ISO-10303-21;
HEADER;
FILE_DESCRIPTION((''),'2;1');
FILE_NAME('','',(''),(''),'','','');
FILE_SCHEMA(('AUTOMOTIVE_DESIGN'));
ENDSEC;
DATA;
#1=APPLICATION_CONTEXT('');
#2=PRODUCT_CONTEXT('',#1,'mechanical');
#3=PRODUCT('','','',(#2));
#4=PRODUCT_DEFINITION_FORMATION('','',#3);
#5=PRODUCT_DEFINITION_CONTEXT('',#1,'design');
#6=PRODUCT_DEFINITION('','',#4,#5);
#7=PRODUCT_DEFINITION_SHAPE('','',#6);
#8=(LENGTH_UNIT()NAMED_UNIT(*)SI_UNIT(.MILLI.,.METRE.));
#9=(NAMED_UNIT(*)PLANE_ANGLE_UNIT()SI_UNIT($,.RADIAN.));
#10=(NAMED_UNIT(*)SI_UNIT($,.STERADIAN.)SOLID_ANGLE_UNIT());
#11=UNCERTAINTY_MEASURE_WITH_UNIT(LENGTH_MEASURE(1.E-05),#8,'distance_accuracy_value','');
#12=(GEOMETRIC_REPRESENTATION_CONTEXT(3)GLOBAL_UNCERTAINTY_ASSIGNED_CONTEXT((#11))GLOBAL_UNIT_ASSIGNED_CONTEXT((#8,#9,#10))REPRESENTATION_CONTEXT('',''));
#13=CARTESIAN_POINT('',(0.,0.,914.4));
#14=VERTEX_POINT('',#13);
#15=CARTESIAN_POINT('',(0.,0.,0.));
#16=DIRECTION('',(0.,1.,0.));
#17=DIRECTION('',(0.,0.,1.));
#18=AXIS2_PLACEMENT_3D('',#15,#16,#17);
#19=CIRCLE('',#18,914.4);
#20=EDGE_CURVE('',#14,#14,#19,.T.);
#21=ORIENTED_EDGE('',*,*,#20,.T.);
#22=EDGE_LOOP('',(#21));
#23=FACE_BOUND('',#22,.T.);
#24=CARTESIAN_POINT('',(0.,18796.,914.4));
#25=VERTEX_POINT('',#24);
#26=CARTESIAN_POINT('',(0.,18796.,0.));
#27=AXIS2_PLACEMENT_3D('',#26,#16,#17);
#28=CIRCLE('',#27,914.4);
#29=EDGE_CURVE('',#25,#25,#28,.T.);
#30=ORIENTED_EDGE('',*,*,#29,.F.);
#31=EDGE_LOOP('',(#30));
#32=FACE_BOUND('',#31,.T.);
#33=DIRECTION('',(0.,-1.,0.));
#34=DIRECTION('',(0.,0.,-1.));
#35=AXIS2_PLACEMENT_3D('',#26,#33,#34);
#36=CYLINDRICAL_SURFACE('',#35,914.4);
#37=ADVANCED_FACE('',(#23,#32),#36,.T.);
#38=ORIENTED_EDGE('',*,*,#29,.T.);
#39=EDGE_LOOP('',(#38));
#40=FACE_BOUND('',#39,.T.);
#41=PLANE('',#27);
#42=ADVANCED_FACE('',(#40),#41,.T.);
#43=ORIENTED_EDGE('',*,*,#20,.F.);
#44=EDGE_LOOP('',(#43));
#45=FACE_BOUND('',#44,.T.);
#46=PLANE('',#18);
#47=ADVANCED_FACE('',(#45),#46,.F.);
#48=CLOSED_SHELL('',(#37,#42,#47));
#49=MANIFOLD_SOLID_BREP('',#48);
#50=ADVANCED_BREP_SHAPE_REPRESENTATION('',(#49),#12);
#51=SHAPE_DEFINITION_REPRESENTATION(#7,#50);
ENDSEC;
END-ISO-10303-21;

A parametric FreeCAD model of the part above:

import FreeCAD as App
import Part
import Sketcher
from FreeCAD import Vector
Q = App.Units.Quantity

doc = App.newDocument("Part")
body = doc.addObject("PartDesign::Body", "Body")

# Sketch on XZ plane
sketch1 = body.newObject("Sketcher::SketchObject", "Sketch")
sketch1.AttachmentSupport = (doc.getObject("XZ_Plane"), [""])
sketch1.MapMode = "FlatFace"
sketch1.addGeometry(Part.Circle(Vector(0, 0, 0), Vector(0, 0, 1), 914), False)
sketch1.addConstraint([
    Sketcher.Constraint("Coincident", 0, 3, -1, 1),
    Sketcher.Constraint("Diameter", 0, Q("72 in")),
])
pad1 = body.newObject("PartDesign::Pad", "Pad")
pad1.Profile = sketch1
pad1.Length = Q("740 in")
pad1.Reversed = True

doc.recompute()
